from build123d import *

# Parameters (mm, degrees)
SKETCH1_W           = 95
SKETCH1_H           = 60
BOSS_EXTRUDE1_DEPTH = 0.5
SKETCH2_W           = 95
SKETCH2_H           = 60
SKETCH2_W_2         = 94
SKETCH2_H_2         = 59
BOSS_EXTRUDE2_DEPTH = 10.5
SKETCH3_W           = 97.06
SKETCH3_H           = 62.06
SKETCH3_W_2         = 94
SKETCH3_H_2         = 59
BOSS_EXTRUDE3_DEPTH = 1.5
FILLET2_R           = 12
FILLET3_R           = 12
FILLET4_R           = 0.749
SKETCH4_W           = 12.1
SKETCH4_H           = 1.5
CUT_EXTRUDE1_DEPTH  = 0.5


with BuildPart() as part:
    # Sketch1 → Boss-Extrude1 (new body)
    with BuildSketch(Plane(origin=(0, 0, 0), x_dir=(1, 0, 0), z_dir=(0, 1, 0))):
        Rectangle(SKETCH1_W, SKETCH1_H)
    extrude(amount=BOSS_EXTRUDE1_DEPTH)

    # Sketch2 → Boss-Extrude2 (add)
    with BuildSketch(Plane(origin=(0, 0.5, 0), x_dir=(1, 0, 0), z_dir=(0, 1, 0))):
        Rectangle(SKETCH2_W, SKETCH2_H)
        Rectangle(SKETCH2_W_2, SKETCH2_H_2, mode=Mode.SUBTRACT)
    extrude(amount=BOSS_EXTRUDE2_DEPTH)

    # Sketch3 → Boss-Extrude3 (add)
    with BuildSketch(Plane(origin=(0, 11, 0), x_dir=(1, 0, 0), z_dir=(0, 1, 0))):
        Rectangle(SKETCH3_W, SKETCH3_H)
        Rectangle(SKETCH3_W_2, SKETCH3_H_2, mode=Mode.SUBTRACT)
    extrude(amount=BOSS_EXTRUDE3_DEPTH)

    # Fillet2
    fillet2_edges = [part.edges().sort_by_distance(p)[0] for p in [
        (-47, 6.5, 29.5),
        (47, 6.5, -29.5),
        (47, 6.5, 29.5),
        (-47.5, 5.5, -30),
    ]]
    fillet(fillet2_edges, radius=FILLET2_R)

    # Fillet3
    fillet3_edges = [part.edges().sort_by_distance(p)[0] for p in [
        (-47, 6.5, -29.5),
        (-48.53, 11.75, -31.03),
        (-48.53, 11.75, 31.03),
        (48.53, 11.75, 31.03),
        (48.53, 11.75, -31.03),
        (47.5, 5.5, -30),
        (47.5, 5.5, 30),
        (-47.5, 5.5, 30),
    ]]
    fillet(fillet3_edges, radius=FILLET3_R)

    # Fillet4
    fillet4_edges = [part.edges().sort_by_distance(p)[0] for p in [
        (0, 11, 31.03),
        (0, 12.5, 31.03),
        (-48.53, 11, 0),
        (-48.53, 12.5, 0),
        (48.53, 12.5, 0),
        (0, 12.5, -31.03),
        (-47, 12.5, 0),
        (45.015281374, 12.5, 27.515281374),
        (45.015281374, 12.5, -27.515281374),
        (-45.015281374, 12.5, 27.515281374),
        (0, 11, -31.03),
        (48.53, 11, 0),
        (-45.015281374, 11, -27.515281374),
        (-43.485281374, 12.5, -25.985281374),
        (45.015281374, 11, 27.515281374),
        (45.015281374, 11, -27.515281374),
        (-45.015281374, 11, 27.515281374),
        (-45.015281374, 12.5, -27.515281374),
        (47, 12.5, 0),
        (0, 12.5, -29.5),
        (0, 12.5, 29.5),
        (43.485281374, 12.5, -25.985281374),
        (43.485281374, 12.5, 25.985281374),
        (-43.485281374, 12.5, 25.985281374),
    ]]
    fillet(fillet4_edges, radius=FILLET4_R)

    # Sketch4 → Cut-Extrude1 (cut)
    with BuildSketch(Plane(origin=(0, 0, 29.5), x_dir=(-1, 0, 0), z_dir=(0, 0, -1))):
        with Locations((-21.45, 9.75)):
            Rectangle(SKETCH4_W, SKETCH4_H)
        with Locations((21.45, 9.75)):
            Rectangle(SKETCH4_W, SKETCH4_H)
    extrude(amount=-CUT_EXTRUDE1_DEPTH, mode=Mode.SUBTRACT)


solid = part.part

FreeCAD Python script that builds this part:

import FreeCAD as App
import Part
import Sketcher
from FreeCAD import Vector


def edges_at(feature, points):
    """Names of the edges that pass closest to the given points."""
    edges = feature.Shape.Edges
    near = lambda p: min(range(len(edges)), key=lambda i: edges[i].distToShape(Part.Vertex(*p))[0])
    return sorted({f"Edge{near(p) + 1}" for p in points})

doc = App.newDocument("Part")
body = doc.addObject("PartDesign::Body", "Body")

sketch1 = body.newObject("Sketcher::SketchObject", "Sketch")
sketch1.AttachmentSupport = (doc.getObject("XZ_Plane"), [""])
sketch1.MapMode = "FlatFace"
sketch1.addGeometry(Part.LineSegment(Vector(-48, -30, 0), Vector(-48, 30, 0)), False)
sketch1.addGeometry(Part.LineSegment(Vector(-48, 30, 0), Vector(48, 30, 0)), False)
sketch1.addGeometry(Part.LineSegment(Vector(48, 30, 0), Vector(48, -30, 0)), False)
sketch1.addGeometry(Part.LineSegment(Vector(48, -30, 0), Vector(-48, -30, 0)), False)
sketch1.addConstraint(Sketcher.Constraint("Coincident", 0, 2, 1, 1))
sketch1.addConstraint(Sketcher.Constraint("Coincident", 1, 2, 2, 1))
sketch1.addConstraint(Sketcher.Constraint("Coincident", 2, 2, 3, 1))
sketch1.addConstraint(Sketcher.Constraint("Coincident", 3, 2, 0, 1))
sketch1.addConstraint(Sketcher.Constraint("Vertical", 0))
sketch1.addConstraint(Sketcher.Constraint("Horizontal", 1))
sketch1.addConstraint(Sketcher.Constraint("Vertical", 2))
sketch1.addConstraint(Sketcher.Constraint("Horizontal", 3))
sketch1.addConstraint(Sketcher.Constraint("Symmetric", 0, 2, 2, 2, -1, 1))
sketch1.addConstraint(Sketcher.Constraint("DistanceX", 1, 1, 1, 2, 95.0))
sketch1.addConstraint(Sketcher.Constraint("DistanceY", 0, 1, 0, 2, 60.0))
pad1 = body.newObject("PartDesign::Pad", "Pad")
pad1.Profile = sketch1
pad1.Length = 0.5
pad1.Reversed = True

sketch2 = body.newObject("Sketcher::SketchObject", "Sketch001")
sketch2.AttachmentSupport = (doc.getObject("XZ_Plane"), [""])
sketch2.MapMode = "FlatFace"
sketch2.AttachmentOffset = App.Placement(Vector(0, 0, -0.5), App.Rotation())
sketch2.addGeometry(Part.LineSegment(Vector(-48, -30, 0), Vector(-48, 30, 0)), False)
sketch2.addGeometry(Part.LineSegment(Vector(-48, 30, 0), Vector(48, 30, 0)), False)
sketch2.addGeometry(Part.LineSegment(Vector(48, 30, 0), Vector(48, -30, 0)), False)
sketch2.addGeometry(Part.LineSegment(Vector(48, -30, 0), Vector(-48, -30, 0)), False)
sketch2.addGeometry(Part.LineSegment(Vector(47, 30, 0), Vector(-47, 30, 0)), False)
sketch2.addGeometry(Part.LineSegment(Vector(-47, 30, 0), Vector(-47, -30, 0)), False)
sketch2.addGeometry(Part.LineSegment(Vector(-47, -30, 0), Vector(47, -30, 0)), False)
sketch2.addGeometry(Part.LineSegment(Vector(47, -30, 0), Vector(47, 30, 0)), False)
sketch2.addConstraint(Sketcher.Constraint("Coincident", 0, 2, 1, 1))
sketch2.addConstraint(Sketcher.Constraint("Coincident", 1, 2, 2, 1))
sketch2.addConstraint(Sketcher.Constraint("Coincident", 2, 2, 3, 1))
sketch2.addConstraint(Sketcher.Constraint("Coincident", 3, 2, 0, 1))
sketch2.addConstraint(Sketcher.Constraint("Coincident", 4, 2, 5, 1))
sketch2.addConstraint(Sketcher.Constraint("Coincident", 5, 2, 6, 1))
sketch2.addConstraint(Sketcher.Constraint("Coincident", 6, 2, 7, 1))
sketch2.addConstraint(Sketcher.Constraint("Coincident", 7, 2, 4, 1))
sketch2.addConstraint(Sketcher.Constraint("Vertical", 0))
sketch2.addConstraint(Sketcher.Constraint("Horizontal", 1))
sketch2.addConstraint(Sketcher.Constraint("Vertical", 2))
sketch2.addConstraint(Sketcher.Constraint("Horizontal", 3))
sketch2.addConstraint(Sketcher.Constraint("Horizontal", 4))
sketch2.addConstraint(Sketcher.Constraint("Vertical", 5))
sketch2.addConstraint(Sketcher.Constraint("Horizontal", 6))
sketch2.addConstraint(Sketcher.Constraint("Vertical", 7))
sketch2.addConstraint(Sketcher.Constraint("Symmetric", 0, 2, 2, 2, -1, 1))
sketch2.addConstraint(Sketcher.Constraint("Symmetric", 4, 2, 6, 2, -1, 1))
sketch2.addConstraint(Sketcher.Constraint("DistanceX", 1, 1, 1, 2, 95.0))
sketch2.addConstraint(Sketcher.Constraint("DistanceX", 4, 2, 4, 1, 94.0))
sketch2.addConstraint(Sketcher.Constraint("DistanceY", 0, 1, 0, 2, 60.0))
sketch2.addConstraint(Sketcher.Constraint("DistanceY", 5, 2, 5, 1, 59.0))
pad2 = body.newObject("PartDesign::Pad", "Pad001")
pad2.Profile = sketch2
pad2.Length = 10.5
pad2.Reversed = True

sketch3 = body.newObject("Sketcher::SketchObject", "Sketch002")
sketch3.AttachmentSupport = (doc.getObject("XZ_Plane"), [""])
sketch3.MapMode = "FlatFace"
sketch3.AttachmentOffset = App.Placement(Vector(0, 0, -11), App.Rotation())
sketch3.addGeometry(Part.LineSegment(Vector(-49, -31, 0), Vector(-49, 31, 0)), False)
sketch3.addGeometry(Part.LineSegment(Vector(-49, 31, 0), Vector(49, 31, 0)), False)
sketch3.addGeometry(Part.LineSegment(Vector(49, 31, 0), Vector(49, -31, 0)), False)
sketch3.addGeometry(Part.LineSegment(Vector(49, -31, 0), Vector(-49, -31, 0)), False)
sketch3.addGeometry(Part.LineSegment(Vector(47, 30, 0), Vector(-47, 30, 0)), False)
sketch3.addGeometry(Part.LineSegment(Vector(-47, 30, 0), Vector(-47, -30, 0)), False)
sketch3.addGeometry(Part.LineSegment(Vector(-47, -30, 0), Vector(47, -30, 0)), False)
sketch3.addGeometry(Part.LineSegment(Vector(47, -30, 0), Vector(47, 30, 0)), False)
sketch3.addConstraint(Sketcher.Constraint("Coincident", 0, 2, 1, 1))
sketch3.addConstraint(Sketcher.Constraint("Coincident", 1, 2, 2, 1))
sketch3.addConstraint(Sketcher.Constraint("Coincident", 2, 2, 3, 1))
sketch3.addConstraint(Sketcher.Constraint("Coincident", 3, 2, 0, 1))
sketch3.addConstraint(Sketcher.Constraint("Coincident", 4, 2, 5, 1))
sketch3.addConstraint(Sketcher.Constraint("Coincident", 5, 2, 6, 1))
sketch3.addConstraint(Sketcher.Constraint("Coincident", 6, 2, 7, 1))
sketch3.addConstraint(Sketcher.Constraint("Coincident", 7, 2, 4, 1))
sketch3.addConstraint(Sketcher.Constraint("Vertical", 0))
sketch3.addConstraint(Sketcher.Constraint("Horizontal", 1))
sketch3.addConstraint(Sketcher.Constraint("Vertical", 2))
sketch3.addConstraint(Sketcher.Constraint("Horizontal", 3))
sketch3.addConstraint(Sketcher.Constraint("Horizontal", 4))
sketch3.addConstraint(Sketcher.Constraint("Vertical", 5))
sketch3.addConstraint(Sketcher.Constraint("Horizontal", 6))
sketch3.addConstraint(Sketcher.Constraint("Vertical", 7))
sketch3.addConstraint(Sketcher.Constraint("Symmetric", 0, 2, 2, 2, -1, 1))
sketch3.addConstraint(Sketcher.Constraint("Symmetric", 4, 2, 6, 2, -1, 1))
sketch3.addConstraint(Sketcher.Constraint("DistanceX", 4, 2, 4, 1, 94.0))
sketch3.addConstraint(Sketcher.Constraint("DistanceY", 5, 2, 5, 1, 59.0))
sketch3.addConstraint(Sketcher.Constraint("DistanceX", 1, 1, 1, 2, 97.06))
sketch3.addConstraint(Sketcher.Constraint("DistanceY", 0, 1, 0, 2, 62.06))
pad3 = body.newObject("PartDesign::Pad", "Pad002")
pad3.Profile = sketch3
pad3.Length = 1.5
pad3.Reversed = True
doc.recompute()

fillet = body.newObject("PartDesign::Fillet", "Fillet")
fillet.Base = (pad3, edges_at(pad3, [
    (-47, 6.5, 29.5),
    (47, 6.5, -29.5),
    (47, 6.5, 29.5),
    (-47.5, 5.5, -30),
]))
fillet.Radius = 12
doc.recompute()

fillet2 = body.newObject("PartDesign::Fillet", "Fillet001")
fillet2.Base = (fillet, edges_at(fillet, [
    (-47, 6.5, -29.5),
    (-48.53, 11.75, -31.03),
    (-48.53, 11.75, 31.03),
    (48.53, 11.75, 31.03),
    (48.53, 11.75, -31.03),
    (47.5, 5.5, -30),
    (47.5, 5.5, 30),
    (-47.5, 5.5, 30),
]))
fillet2.Radius = 12
doc.recompute()

fillet3 = body.newObject("PartDesign::Fillet", "Fillet002")
fillet3.Base = (fillet2, edges_at(fillet2, [
    (0, 11, 31.03),
    (0, 12.5, 31.03),
    (-48.53, 11, 0),
    (-48.53, 12.5, 0),
    (48.53, 12.5, 0),
    (0, 12.5, -31.03),
    (-47, 12.5, 0),
    (45.015, 12.5, 27.515),
    (45.015, 12.5, -27.515),
    (-45.015, 12.5, 27.515),
    (0, 11, -31.03),
    (48.53, 11, 0),
    (-45.015, 11, -27.515),
    (-43.485, 12.5, -25.985),
    (45.015, 11, 27.515),
    (45.015, 11, -27.515),
    (-45.015, 11, 27.515),
    (-45.015, 12.5, -27.515),
    (47, 12.5, 0),
    (0, 12.5, -29.5),
    (0, 12.5, 29.5),
    (43.485, 12.5, -25.985),
    (43.485, 12.5, 25.985),
    (-43.485, 12.5, 25.985),
]))
fillet3.Radius = 0.749

sketch4 = body.newObject("Sketcher::SketchObject", "Sketch003")
sketch4.AttachmentSupport = (doc.getObject("XY_Plane"), [""])
sketch4.MapMode = "FlatFace"
sketch4.AttachmentOffset = App.Placement(Vector(0, 0, 29.5), App.Rotation())
sketch4.addGeometry(Part.LineSegment(Vector(27.5, 10.5, 0), Vector(27.5, 9, 0)), False)
sketch4.addGeometry(Part.LineSegment(Vector(27.5, 9, 0), Vector(15.4, 9, 0)), False)
sketch4.addGeometry(Part.LineSegment(Vector(15.4, 9, 0), Vector(15.4, 10.5, 0)), False)
sketch4.addGeometry(Part.LineSegment(Vector(15.4, 10.5, 0), Vector(27.5, 10.5, 0)), False)
sketch4.addGeometry(Part.LineSegment(Vector(-15.4, 10.5, 0), Vector(-15.4, 9, 0)), False)
sketch4.addGeometry(Part.LineSegment(Vector(-15.4, 9, 0), Vector(-27.5, 9, 0)), False)
sketch4.addGeometry(Part.LineSegment(Vector(-27.5, 9, 0), Vector(-27.5, 10.5, 0)), False)
sketch4.addGeometry(Part.LineSegment(Vector(-27.5, 10.5, 0), Vector(-15.4, 10.5, 0)), False)
sketch4.addConstraint(Sketcher.Constraint("Coincident", 0, 2, 1, 1))
sketch4.addConstraint(Sketcher.Constraint("Coincident", 1, 2, 2, 1))
sketch4.addConstraint(Sketcher.Constraint("Coincident", 2, 2, 3, 1))
sketch4.addConstraint(Sketcher.Constraint("Coincident", 3, 2, 0, 1))
sketch4.addConstraint(Sketcher.Constraint("Coincident", 4, 2, 5, 1))
sketch4.addConstraint(Sketcher.Constraint("Coincident", 5, 2, 6, 1))
sketch4.addConstraint(Sketcher.Constraint("Coincident", 6, 2, 7, 1))
sketch4.addConstraint(Sketcher.Constraint("Coincident", 7, 2, 4, 1))
sketch4.addConstraint(Sketcher.Constraint("Vertical", 0))
sketch4.addConstraint(Sketcher.Constraint("Horizontal", 1))
sketch4.addConstraint(Sketcher.Constraint("Vertical", 2))
sketch4.addConstraint(Sketcher.Constraint("Horizontal", 3))
sketch4.addConstraint(Sketcher.Constraint("Vertical", 4))
sketch4.addConstraint(Sketcher.Constraint("Horizontal", 5))
sketch4.addConstraint(Sketcher.Constraint("Vertical", 6))
sketch4.addConstraint(Sketcher.Constraint("Horizontal", 7))
sketch4.addConstraint(Sketcher.Constraint("Symmetric", 1, 2, 4, 2, -2))
sketch4.addConstraint(Sketcher.Constraint("Symmetric", 3, 2, 6, 2, -2))
sketch4.addConstraint(Sketcher.Constraint("DistanceX", 1, 2, 1, 1, 12.1))
sketch4.addConstraint(Sketcher.Constraint("DistanceY", 0, 2, 0, 1, 1.5))
sketch4.addConstraint(Sketcher.Constraint("DistanceY", -1, 1, 0, 2, 9.0))
sketch4.addConstraint(Sketcher.Constraint("DistanceX", 5, 2, 0, 2, 55.0))
pocket1 = body.newObject("PartDesign::Pocket", "Pocket")
pocket1.Profile = sketch4
pocket1.Length = 0.5
pocket1.Reversed = True

doc.recompute()
